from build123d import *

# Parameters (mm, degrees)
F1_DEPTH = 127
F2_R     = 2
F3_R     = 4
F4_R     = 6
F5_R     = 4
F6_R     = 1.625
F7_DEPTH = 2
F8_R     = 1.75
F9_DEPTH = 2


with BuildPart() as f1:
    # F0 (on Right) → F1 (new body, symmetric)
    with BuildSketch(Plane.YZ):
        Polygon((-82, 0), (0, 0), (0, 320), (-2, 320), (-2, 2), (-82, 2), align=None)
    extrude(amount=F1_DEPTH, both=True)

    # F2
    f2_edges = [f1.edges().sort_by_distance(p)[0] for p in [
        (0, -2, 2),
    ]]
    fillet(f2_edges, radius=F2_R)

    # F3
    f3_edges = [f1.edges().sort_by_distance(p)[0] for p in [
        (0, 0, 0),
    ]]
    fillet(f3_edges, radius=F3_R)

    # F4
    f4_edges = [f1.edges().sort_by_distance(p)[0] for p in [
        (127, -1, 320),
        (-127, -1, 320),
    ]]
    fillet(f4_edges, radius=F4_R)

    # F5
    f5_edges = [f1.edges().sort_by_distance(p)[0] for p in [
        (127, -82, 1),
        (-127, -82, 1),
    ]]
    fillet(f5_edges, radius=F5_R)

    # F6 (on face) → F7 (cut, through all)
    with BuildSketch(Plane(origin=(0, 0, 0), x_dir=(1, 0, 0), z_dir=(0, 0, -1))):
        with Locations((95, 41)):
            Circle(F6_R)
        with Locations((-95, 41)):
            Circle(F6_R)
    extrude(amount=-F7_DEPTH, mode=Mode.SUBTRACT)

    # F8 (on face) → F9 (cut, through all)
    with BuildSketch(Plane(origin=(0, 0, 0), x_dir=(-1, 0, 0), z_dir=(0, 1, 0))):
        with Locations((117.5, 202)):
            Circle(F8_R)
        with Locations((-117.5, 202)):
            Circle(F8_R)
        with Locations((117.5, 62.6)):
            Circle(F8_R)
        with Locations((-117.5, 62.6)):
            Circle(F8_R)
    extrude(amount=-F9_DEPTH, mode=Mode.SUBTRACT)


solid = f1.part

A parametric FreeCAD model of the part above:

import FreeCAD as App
import Part
import Sketcher
from FreeCAD import Vector


def edges_at(feature, points):
    """Names of the edges that pass closest to the given points."""
    edges = feature.Shape.Edges
    near = lambda p: min(range(len(edges)), key=lambda i: edges[i].distToShape(Part.Vertex(*p))[0])
    return sorted({f"Edge{near(p) + 1}" for p in points})

doc = App.newDocument("Part")
body = doc.addObject("PartDesign::Body", "Body")

# Sketch on YZ plane
sketch1 = doc.addObject("Sketcher::SketchObject", "Sketch")
body.addObject(sketch1)
sketch1.AttachmentSupport = (doc.YZ_Plane, [""])
sketch1.MapMode = "FlatFace"
sketch1.addGeometry(Part.LineSegment(Vector(-82, 0, 0), Vector(0, 0, 0)), False)
sketch1.addGeometry(Part.LineSegment(Vector(0, 0, 0), Vector(0, 320, 0)), False)
sketch1.addGeometry(Part.LineSegment(Vector(0, 320, 0), Vector(-2, 320, 0)), False)
sketch1.addGeometry(Part.LineSegment(Vector(-2, 320, 0), Vector(-2, 2, 0)), False)
sketch1.addGeometry(Part.LineSegment(Vector(-2, 2, 0), Vector(-82, 2, 0)), False)
sketch1.addGeometry(Part.LineSegment(Vector(-82, 2, 0), Vector(-82, 0, 0)), False)
sketch1.addConstraint(Sketcher.Constraint("Coincident", 0, 2, 1, 1))
sketch1.addConstraint(Sketcher.Constraint("Coincident", 1, 2, 2, 1))
sketch1.addConstraint(Sketcher.Constraint("Coincident", 2, 2, 3, 1))
sketch1.addConstraint(Sketcher.Constraint("Coincident", 3, 2, 4, 1))
sketch1.addConstraint(Sketcher.Constraint("Coincident", 4, 2, 5, 1))
sketch1.addConstraint(Sketcher.Constraint("Coincident", 5, 2, 0, 1))
sketch1.addConstraint(Sketcher.Constraint("Horizontal", 0))
sketch1.addConstraint(Sketcher.Constraint("Vertical", 1))
sketch1.addConstraint(Sketcher.Constraint("Horizontal", 2))
sketch1.addConstraint(Sketcher.Constraint("Vertical", 3))
sketch1.addConstraint(Sketcher.Constraint("Horizontal", 4))
sketch1.addConstraint(Sketcher.Constraint("Vertical", 5))
sketch1.addConstraint(Sketcher.Constraint("Coincident", 0, 2, -1, 1))
sketch1.addConstraint(Sketcher.Constraint("Equal", 2, 5))
sketch1.addConstraint(Sketcher.Constraint("DistanceX", 0, 1, 0, 2, 82.0))
sketch1.addConstraint(Sketcher.Constraint("DistanceX", 2, 2, 2, 1, 2.0))
sketch1.addConstraint(Sketcher.Constraint("DistanceY", 1, 1, 1, 2, 320.0))
pad1 = doc.addObject("PartDesign::Pad", "Pad")
body.addObject(pad1)
pad1.Profile = sketch1
pad1.Length = 254
pad1.Midplane = True
doc.recompute()

fillet = doc.addObject("PartDesign::Fillet", "Fillet")
body.addObject(fillet)
fillet.Base = (pad1, edges_at(pad1, [(0, -2, 2)]))
fillet.Radius = 2
doc.recompute()

fillet2 = doc.addObject("PartDesign::Fillet", "Fillet001")
body.addObject(fillet2)
fillet2.Base = (fillet, edges_at(fillet, [(0, 0, 0)]))
fillet2.Radius = 4
doc.recompute()

fillet3 = doc.addObject("PartDesign::Fillet", "Fillet002")
body.addObject(fillet3)
fillet3.Base = (fillet2, edges_at(fillet2, [(127, -1, 320), (-127, -1, 320)]))
fillet3.Radius = 6
doc.recompute()

fillet4 = doc.addObject("PartDesign::Fillet", "Fillet003")
body.addObject(fillet4)
fillet4.Base = (fillet3, edges_at(fillet3, [(127, -82, 1), (-127, -82, 1)]))
fillet4.Radius = 4

# Sketch on XY plane
sketch2 = doc.addObject("Sketcher::SketchObject", "Sketch001")
body.addObject(sketch2)
sketch2.AttachmentSupport = (doc.XY_Plane, [""])
sketch2.MapMode = "FlatFace"
sketch2.addGeometry(Part.Circle(Vector(95, -41, 0), Vector(0, 0, 1), 1.6), False)
sketch2.addGeometry(Part.Circle(Vector(-95, -41, 0), Vector(0, 0, 1), 1.6), False)
sketch2.addConstraint(Sketcher.Constraint("Equal", 0, 1))
sketch2.addConstraint(Sketcher.Constraint("Symmetric", 0, 3, 1, 3, -2))
sketch2.addConstraint(Sketcher.Constraint("Diameter", 0, 3.25))
sketch2.addConstraint(Sketcher.Constraint("DistanceX", -1, 1, 0, 3, 95.0))
sketch2.addConstraint(Sketcher.Constraint("DistanceY", 0, 3, -1, 1, 41.0))
pocket1 = doc.addObject("PartDesign::Pocket", "Pocket")
body.addObject(pocket1)
pocket1.Profile = sketch2
pocket1.Type = "ThroughAll"
pocket1.Reversed = True

# Sketch on XZ plane
sketch3 = doc.addObject("Sketcher::SketchObject", "Sketch002")
body.addObject(sketch3)
sketch3.AttachmentSupport = (doc.XZ_Plane, [""])
sketch3.MapMode = "FlatFace"
sketch3.addGeometry(Part.Circle(Vector(-117.5, 202, 0), Vector(0, 0, 1), 1.8), False)
sketch3.addGeometry(Part.Circle(Vector(117.5, 202, 0), Vector(0, 0, 1), 1.8), False)
sketch3.addGeometry(Part.Circle(Vector(-117.5, 62.6, 0), Vector(0, 0, 1), 1.8), False)
sketch3.addGeometry(Part.Circle(Vector(117.5, 62.6, 0), Vector(0, 0, 1), 1.8), False)
sketch3.addConstraint(Sketcher.Constraint("Equal", 0, 1))
sketch3.addConstraint(Sketcher.Constraint("Equal", 1, 2))
sketch3.addConstraint(Sketcher.Constraint("Equal", 2, 3))
sketch3.addConstraint(Sketcher.Constraint("Symmetric", 0, 3, 1, 3, -2))
sketch3.addConstraint(Sketcher.Constraint("Symmetric", 2, 3, 3, 3, -2))
sketch3.addConstraint(Sketcher.Constraint("Vertical", 0, 3, 2, 3))
sketch3.addConstraint(Sketcher.Constraint("Diameter", 0, 3.5))
sketch3.addConstraint(Sketcher.Constraint("DistanceY", -1, 1, 0, 3, 202.0))
sketch3.addConstraint(Sketcher.Constraint("DistanceX", 0, 3, 1, 3, 235.0))
sketch3.addConstraint(Sketcher.Constraint("DistanceY", -1, 1, 2, 3, 62.6))
pocket2 = doc.addObject("PartDesign::Pocket", "Pocket001")
body.addObject(pocket2)
pocket2.Profile = sketch3
pocket2.Type = "ThroughAll"
pocket2.Reversed = True

doc.recompute()
